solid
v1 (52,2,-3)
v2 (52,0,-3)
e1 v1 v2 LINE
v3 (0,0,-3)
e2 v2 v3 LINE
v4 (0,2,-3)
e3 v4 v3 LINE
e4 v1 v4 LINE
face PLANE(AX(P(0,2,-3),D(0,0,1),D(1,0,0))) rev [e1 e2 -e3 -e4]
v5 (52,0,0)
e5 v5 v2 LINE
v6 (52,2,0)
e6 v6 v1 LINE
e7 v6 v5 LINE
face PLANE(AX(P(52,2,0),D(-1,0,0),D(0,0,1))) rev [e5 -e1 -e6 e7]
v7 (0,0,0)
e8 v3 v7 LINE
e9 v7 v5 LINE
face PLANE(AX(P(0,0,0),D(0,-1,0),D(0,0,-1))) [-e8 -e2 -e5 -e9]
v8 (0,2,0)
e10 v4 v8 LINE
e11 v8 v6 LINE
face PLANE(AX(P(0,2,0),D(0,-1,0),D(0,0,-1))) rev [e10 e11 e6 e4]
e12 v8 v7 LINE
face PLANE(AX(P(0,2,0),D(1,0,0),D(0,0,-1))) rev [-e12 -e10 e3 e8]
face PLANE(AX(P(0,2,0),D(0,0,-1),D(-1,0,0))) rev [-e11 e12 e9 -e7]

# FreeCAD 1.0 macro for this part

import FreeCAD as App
import Part
import Sketcher
Q = App.Units.Quantity

doc = App.newDocument("Part")
body = doc.addObject("PartDesign::Body", "Body")

sketch1 = body.newObject("Sketcher::SketchObject", "Sketch")
sketch1.AttachmentSupport = (doc.getObject("XZ_Plane"), [""])
sketch1.MapMode = "FlatFace"
sketch1.addGeometry([
    Part.LineSegment(App.Vector(0, -3, 0), App.Vector(0, 0, 0)),
    Part.LineSegment(App.Vector(0, 0, 0), App.Vector(52, 0, 0)),
    Part.LineSegment(App.Vector(52, 0, 0), App.Vector(52, -3, 0)),
    Part.LineSegment(App.Vector(52, -3, 0), App.Vector(0, -3, 0)),
], False)
sketch1.addConstraint([
    Sketcher.Constraint("Coincident", 0, 2, 1, 1),
    Sketcher.Constraint("Coincident", 1, 2, 2, 1),
    Sketcher.Constraint("Coincident", 2, 2, 3, 1),
    Sketcher.Constraint("Coincident", 3, 2, 0, 1),
    Sketcher.Constraint("Vertical", 0),
    Sketcher.Constraint("Horizontal", 1),
    Sketcher.Constraint("Vertical", 2),
    Sketcher.Constraint("Horizontal", 3),
    Sketcher.Constraint("Coincident", 0, 2, -1, 1),
    Sketcher.Constraint("DistanceX", 1, 1, 1, 2, Q("52 mm")),
    Sketcher.Constraint("DistanceY", 0, 1, 0, 2, Q("3 mm")),
])
pad1 = body.newObject("PartDesign::Pad", "Pad")
pad1.Profile = sketch1
pad1.Length = 2
pad1.Reversed = True

doc.recompute()
